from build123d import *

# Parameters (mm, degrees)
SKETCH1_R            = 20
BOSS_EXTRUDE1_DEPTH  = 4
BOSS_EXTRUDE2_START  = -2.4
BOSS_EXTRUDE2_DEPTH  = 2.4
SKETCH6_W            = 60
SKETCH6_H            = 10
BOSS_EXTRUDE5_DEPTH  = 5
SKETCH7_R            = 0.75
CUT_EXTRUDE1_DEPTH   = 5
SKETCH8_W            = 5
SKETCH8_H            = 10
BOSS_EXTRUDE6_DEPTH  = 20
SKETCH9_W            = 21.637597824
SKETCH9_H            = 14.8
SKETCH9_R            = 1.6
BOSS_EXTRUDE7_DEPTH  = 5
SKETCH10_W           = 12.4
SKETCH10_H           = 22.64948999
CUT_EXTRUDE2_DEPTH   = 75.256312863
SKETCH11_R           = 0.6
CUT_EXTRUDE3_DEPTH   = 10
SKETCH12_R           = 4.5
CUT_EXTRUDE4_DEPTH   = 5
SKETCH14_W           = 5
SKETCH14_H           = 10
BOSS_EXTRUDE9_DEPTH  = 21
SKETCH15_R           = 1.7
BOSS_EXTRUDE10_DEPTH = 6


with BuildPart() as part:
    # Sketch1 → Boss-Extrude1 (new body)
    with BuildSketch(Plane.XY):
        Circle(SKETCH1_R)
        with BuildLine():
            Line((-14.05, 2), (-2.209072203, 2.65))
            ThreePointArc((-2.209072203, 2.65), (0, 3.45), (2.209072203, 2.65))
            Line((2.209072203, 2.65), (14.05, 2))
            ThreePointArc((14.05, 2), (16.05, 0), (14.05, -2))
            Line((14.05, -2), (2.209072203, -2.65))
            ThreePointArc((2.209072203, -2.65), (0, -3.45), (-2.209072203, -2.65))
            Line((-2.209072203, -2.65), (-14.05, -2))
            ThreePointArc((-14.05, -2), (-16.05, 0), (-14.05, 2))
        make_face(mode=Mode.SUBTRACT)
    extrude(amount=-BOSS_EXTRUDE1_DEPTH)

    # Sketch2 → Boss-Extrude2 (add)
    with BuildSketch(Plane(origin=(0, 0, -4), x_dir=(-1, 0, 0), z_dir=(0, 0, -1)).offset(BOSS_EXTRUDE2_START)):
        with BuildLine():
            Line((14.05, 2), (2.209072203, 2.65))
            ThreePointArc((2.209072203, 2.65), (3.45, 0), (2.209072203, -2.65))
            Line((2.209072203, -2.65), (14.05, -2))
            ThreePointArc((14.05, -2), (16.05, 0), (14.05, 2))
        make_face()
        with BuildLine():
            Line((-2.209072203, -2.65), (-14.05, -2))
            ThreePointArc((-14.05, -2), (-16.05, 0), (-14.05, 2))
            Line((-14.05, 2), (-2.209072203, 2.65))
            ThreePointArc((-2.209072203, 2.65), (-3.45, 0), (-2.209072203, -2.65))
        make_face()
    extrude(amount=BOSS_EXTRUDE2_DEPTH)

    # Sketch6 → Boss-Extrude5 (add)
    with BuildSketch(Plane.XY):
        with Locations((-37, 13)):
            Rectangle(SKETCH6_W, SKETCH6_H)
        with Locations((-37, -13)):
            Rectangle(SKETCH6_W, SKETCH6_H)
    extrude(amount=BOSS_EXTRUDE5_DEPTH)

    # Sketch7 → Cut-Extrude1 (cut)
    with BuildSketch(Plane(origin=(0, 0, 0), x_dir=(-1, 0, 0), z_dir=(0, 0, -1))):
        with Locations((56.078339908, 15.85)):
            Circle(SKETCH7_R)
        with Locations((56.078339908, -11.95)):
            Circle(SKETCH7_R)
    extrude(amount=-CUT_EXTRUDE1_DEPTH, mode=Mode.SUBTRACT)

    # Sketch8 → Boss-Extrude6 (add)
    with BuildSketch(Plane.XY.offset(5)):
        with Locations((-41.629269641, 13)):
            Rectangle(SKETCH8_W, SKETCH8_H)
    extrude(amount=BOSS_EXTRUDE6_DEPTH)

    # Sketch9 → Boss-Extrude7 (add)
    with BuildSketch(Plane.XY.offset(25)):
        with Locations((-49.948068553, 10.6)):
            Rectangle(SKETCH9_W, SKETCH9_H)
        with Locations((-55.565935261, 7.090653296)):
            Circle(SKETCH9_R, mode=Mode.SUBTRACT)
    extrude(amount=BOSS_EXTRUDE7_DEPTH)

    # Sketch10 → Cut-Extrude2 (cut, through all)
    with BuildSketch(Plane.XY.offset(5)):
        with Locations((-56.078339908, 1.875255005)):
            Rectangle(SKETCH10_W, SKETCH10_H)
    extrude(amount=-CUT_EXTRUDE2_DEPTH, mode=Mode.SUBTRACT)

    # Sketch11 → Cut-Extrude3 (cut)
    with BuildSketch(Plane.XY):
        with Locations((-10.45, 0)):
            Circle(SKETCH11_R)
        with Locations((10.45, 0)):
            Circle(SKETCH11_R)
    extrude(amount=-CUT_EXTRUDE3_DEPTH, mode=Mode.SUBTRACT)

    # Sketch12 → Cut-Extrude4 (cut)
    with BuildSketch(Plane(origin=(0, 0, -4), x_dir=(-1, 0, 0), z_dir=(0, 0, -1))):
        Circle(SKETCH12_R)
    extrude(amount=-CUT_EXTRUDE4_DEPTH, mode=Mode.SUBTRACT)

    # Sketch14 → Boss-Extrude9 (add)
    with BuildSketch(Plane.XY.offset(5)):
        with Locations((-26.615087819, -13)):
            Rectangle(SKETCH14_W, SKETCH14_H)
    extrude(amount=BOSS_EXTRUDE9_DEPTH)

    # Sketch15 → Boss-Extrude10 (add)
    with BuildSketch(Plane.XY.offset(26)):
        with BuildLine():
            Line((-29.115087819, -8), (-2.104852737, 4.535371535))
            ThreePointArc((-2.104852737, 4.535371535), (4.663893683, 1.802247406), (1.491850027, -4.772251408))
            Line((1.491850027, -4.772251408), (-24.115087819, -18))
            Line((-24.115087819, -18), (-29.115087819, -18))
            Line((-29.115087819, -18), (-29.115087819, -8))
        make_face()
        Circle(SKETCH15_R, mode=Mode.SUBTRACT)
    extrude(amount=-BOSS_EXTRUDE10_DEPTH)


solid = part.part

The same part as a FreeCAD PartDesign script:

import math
import FreeCAD as App
import Part
import Sketcher

V = App.Vector


def add_polygon(sketch, points):
    """Adds a closed chain of lines whose ends are joined by coincident constraints."""
    first, n = sketch.GeometryCount, len(points)
    for a, b in zip(points, points[1:] + points[:1]):
        sketch.addGeometry(Part.LineSegment(App.Vector(*a, 0), App.Vector(*b, 0)), False)
    for i in range(n):
        sketch.addConstraint(Sketcher.Constraint("Coincident", first + i, 2, first + (i + 1) % n, 1))

doc = App.newDocument("Part")
params = doc.addObject("Spreadsheet::Sheet", "Params")
for row, (alias, value) in enumerate([
    ("sketch1_diameter", "40 mm"),
    ("sketch1_radius", "2 mm"),
    ("sketch1_radius2", "3.45 mm"),
    ("pad1_length", "4 mm"),
    ("sketch2_radius", "2 mm"),
    ("sketch2_radius2", "3.45 mm"),
    ("pad2_length", "2.4 mm"),
    ("sketch3_width", "60 mm"),
    ("sketch3_height", "10 mm"),
    ("pad3_length", "5 mm"),
    ("sketch4_diameter", "1.5 mm"),
    ("pocket1_length", "5 mm"),
    ("sketch5_width", "5 mm"),
    ("sketch5_height", "10 mm"),
    ("pad4_length", "20 mm"),
    ("sketch6_diameter", "3.2 mm"),
    ("sketch6_height", "14.8 mm"),
    ("pad5_length", "5 mm"),
    ("sketch7_width", "12.4 mm"),
    ("sketch8_diameter", "1.2 mm"),
    ("pocket3_length", "10 mm"),
    ("sketch9_diameter", "9 mm"),
    ("pocket4_length", "5 mm"),
    ("sketch10_width", "5 mm"),
    ("sketch10_height", "10 mm"),
    ("pad6_length", "21 mm"),
    ("sketch11_radius", "5 mm"),
    ("sketch11_diameter", "3.4 mm"),
    ("sketch11_width", "5 mm"),
    ("sketch11_height", "10 mm"),
    ("pad7_length", "6 mm"),
], start=1):
    params.set(f"A{row}", alias)
    params.set(f"B{row}", "=" + value)
    params.setAlias(f"B{row}", alias)

body = doc.addObject("PartDesign::Body", "Body")

# Sketch on XY plane
sketch1 = doc.addObject("Sketcher::SketchObject", "Sketch")
body.addObject(sketch1)
sketch1.AttachmentSupport = (doc.XY_Plane, [""])
sketch1.MapMode = "FlatFace"
sketch1.addGeometry(Part.Circle(V(0, 0, 0), V(0, 0, 1), 20), False)
sketch1.addGeometry(Part.ArcOfCircle(Part.Circle(V(-14.1, 0, 0), V(0, 0, 1), 2), math.radians(90), math.radians(270)), False)
sketch1.addGeometry(Part.LineSegment(V(-14.1, 2, 0), V(-2.2, 2.6, 0)), False)
sketch1.addGeometry(Part.ArcOfCircle(Part.Circle(V(0, 0, 0), V(0, 0, 1), 3.4), math.radians(50), math.radians(130)), False)
sketch1.addGeometry(Part.LineSegment(V(2.2, 2.6, 0), V(14.1, 2, 0)), False)
sketch1.addGeometry(Part.ArcOfCircle(Part.Circle(V(14.1, 0, 0), V(0, 0, 1), 2), math.radians(-90), math.radians(90)), False)
sketch1.addGeometry(Part.LineSegment(V(14.1, -2, 0), V(2.2, -2.6, 0)), False)
sketch1.addGeometry(Part.ArcOfCircle(Part.Circle(V(0, 0, 0), V(0, 0, 1), 3.4), math.radians(-130), math.radians(-50)), False)
sketch1.addGeometry(Part.LineSegment(V(-2.2, -2.6, 0), V(-14.1, -2, 0)), False)
sketch1.addConstraint(Sketcher.Constraint("Coincident", 1, 1, 2, 1))
sketch1.addConstraint(Sketcher.Constraint("Coincident", 2, 2, 3, 2))
sketch1.addConstraint(Sketcher.Constraint("Coincident", 3, 1, 4, 1))
sketch1.addConstraint(Sketcher.Constraint("Coincident", 4, 2, 5, 2))
sketch1.addConstraint(Sketcher.Constraint("Coincident", 5, 1, 6, 1))
sketch1.addConstraint(Sketcher.Constraint("Coincident", 6, 2, 7, 2))
sketch1.addConstraint(Sketcher.Constraint("Coincident", 7, 1, 8, 1))
sketch1.addConstraint(Sketcher.Constraint("Coincident", 8, 2, 1, 2))
sketch1.addConstraint(Sketcher.Constraint("Coincident", 0, 3, -1, 1))
sketch1.addConstraint(Sketcher.Constraint("Coincident", 3, 3, -1, 1))
sketch1.addConstraint(Sketcher.Constraint("Coincident", 7, 3, -1, 1))
sketch1.addConstraint(Sketcher.Constraint("Equal", 1, 5))
sketch1.addConstraint(Sketcher.Constraint("Equal", 3, 7))
sketch1.addConstraint(Sketcher.Constraint("Symmetric", 1, 3, 5, 3, -1, 1))
sketch1.addConstraint(Sketcher.Constraint("Symmetric", 1, 1, 4, 2, -2))
sketch1.addConstraint(Sketcher.Constraint("Parallel", 2, 6))
sketch1.addConstraint(Sketcher.Constraint("Parallel", 4, 8))
sketch1.addConstraint(Sketcher.Constraint("Horizontal", 2, 2, 3, 1))
sketch1.addConstraint(Sketcher.Constraint("Horizontal", 6, 2, 7, 1))
sketch1.addConstraint(Sketcher.Constraint("Vertical", 5, 3, 4, 2))
sketch1.addConstraint(Sketcher.Constraint("Vertical", 4, 2, 5, 1))
sketch1.addConstraint(Sketcher.Constraint("Diameter", 0, 40.0))
sketch1.addConstraint(Sketcher.Constraint("Radius", 1, 2.0))
sketch1.addConstraint(Sketcher.Constraint("Radius", 3, 3.45))
sketch1.addConstraint(Sketcher.Constraint("DistanceX", 1, 3, 5, 3, 28.1))
sketch1.addConstraint(Sketcher.Constraint("DistanceY", 6, 2, 3, 1, 5.3))
sketch1.setExpression("Constraints[21]", "Params.sketch1_diameter")
sketch1.setExpression("Constraints[22]", "Params.sketch1_radius")
sketch1.setExpression("Constraints[23]", "Params.sketch1_radius2")
pad1 = doc.addObject("PartDesign::Pad", "Pad")
body.addObject(pad1)
pad1.Profile = sketch1
pad1.setExpression("Length", "Params.pad1_length")
pad1.Reversed = True

# Sketch on XY plane
sketch2 = doc.addObject("Sketcher::SketchObject", "Sketch001")
body.addObject(sketch2)
sketch2.AttachmentSupport = (doc.XY_Plane, [""])
sketch2.MapMode = "FlatFace"
sketch2.AttachmentOffset = App.Placement(V(0, 0, -1.6), App.Rotation())
sketch2.addGeometry(Part.LineSegment(V(-14.1, 2, 0), V(-2.2, 2.6, 0)), False)
sketch2.addGeometry(Part.ArcOfCircle(Part.Circle(V(0, 0, 0), V(0, 0, 1), 3.4), math.radians(130), math.radians(230)), False)
sketch2.addGeometry(Part.LineSegment(V(-2.2, -2.6, 0), V(-14.1, -2, 0)), False)
sketch2.addGeometry(Part.ArcOfCircle(Part.Circle(V(-14.1, 0, 0), V(0, 0, 1), 2), math.radians(90), math.radians(270)), False)
sketch2.addGeometry(Part.LineSegment(V(14.1, -2, 0), V(2.2, -2.6, 0)), False)
sketch2.addGeometry(Part.ArcOfCircle(Part.Circle(V(0, 0, 0), V(0, 0, 1), 3.4), math.radians(-50), math.radians(50)), False)
sketch2.addGeometry(Part.LineSegment(V(2.2, 2.6, 0), V(14.1, 2, 0)), False)
sketch2.addGeometry(Part.ArcOfCircle(Part.Circle(V(14.1, 0, 0), V(0, 0, 1), 2), math.radians(-90), math.radians(90)), False)
sketch2.addConstraint(Sketcher.Constraint("Coincident", 0, 2, 1, 1))
sketch2.addConstraint(Sketcher.Constraint("Coincident", 1, 2, 2, 1))
sketch2.addConstraint(Sketcher.Constraint("Coincident", 2, 2, 3, 2))
sketch2.addConstraint(Sketcher.Constraint("Coincident", 3, 1, 0, 1))
sketch2.addConstraint(Sketcher.Constraint("Coincident", 4, 2, 5, 1))
sketch2.addConstraint(Sketcher.Constraint("Coincident", 5, 2, 6, 1))
sketch2.addConstraint(Sketcher.Constraint("Coincident", 6, 2, 7, 2))
sketch2.addConstraint(Sketcher.Constraint("Coincident", 7, 1, 4, 1))
sketch2.addConstraint(Sketcher.Constraint("Coincident", 1, 3, -1, 1))
sketch2.addConstraint(Sketcher.Constraint("Coincident", 5, 3, -1, 1))
sketch2.addConstraint(Sketcher.Constraint("Equal", 1, 5))
sketch2.addConstraint(Sketcher.Constraint("Equal", 3, 7))
sketch2.addConstraint(Sketcher.Constraint("Symmetric", 3, 3, 7, 3, -1, 1))
sketch2.addConstraint(Sketcher.Constraint("Symmetric", 3, 1, 6, 2, -2))
sketch2.addConstraint(Sketcher.Constraint("Parallel", 0, 4))
sketch2.addConstraint(Sketcher.Constraint("Parallel", 2, 6))
sketch2.addConstraint(Sketcher.Constraint("Horizontal", 1, 2, 4, 2))
sketch2.addConstraint(Sketcher.Constraint("Horizontal", 0, 2, 5, 2))
sketch2.addConstraint(Sketcher.Constraint("Vertical", 0, 2, 1, 2))
sketch2.addConstraint(Sketcher.Constraint("Vertical", 3, 3, 2, 2))
sketch2.addConstraint(Sketcher.Constraint("Radius", 3, 2.0))
sketch2.addConstraint(Sketcher.Constraint("Radius", 1, 3.45))
sketch2.addConstraint(Sketcher.Constraint("DistanceX", 3, 3, 7, 3, 28.1))
sketch2.addConstraint(Sketcher.Constraint("DistanceY", 1, 2, 0, 2, 5.3))
sketch2.setExpression("Constraints[20]", "Params.sketch2_radius")
sketch2.setExpression("Constraints[21]", "Params.sketch2_radius2")
pad2 = doc.addObject("PartDesign::Pad", "Pad001")
body.addObject(pad2)
pad2.Profile = sketch2
pad2.setExpression("Length", "Params.pad2_length")
pad2.Reversed = True

# Sketch on XY plane
sketch3 = doc.addObject("Sketcher::SketchObject", "Sketch002")
body.addObject(sketch3)
sketch3.AttachmentSupport = (doc.XY_Plane, [""])
sketch3.MapMode = "FlatFace"
add_polygon(sketch3, [(-67, 18), (-67, 8), (-7, 8), (-7, 18)])  # lines 0-3
add_polygon(sketch3, [(-67, -8), (-67, -18), (-7, -18), (-7, -8)])  # lines 4-7
sketch3.addConstraint(Sketcher.Constraint("Vertical", 0))
sketch3.addConstraint(Sketcher.Constraint("Horizontal", 1))
sketch3.addConstraint(Sketcher.Constraint("Vertical", 2))
sketch3.addConstraint(Sketcher.Constraint("Horizontal", 3))
sketch3.addConstraint(Sketcher.Constraint("Vertical", 4))
sketch3.addConstraint(Sketcher.Constraint("Horizontal", 5))
sketch3.addConstraint(Sketcher.Constraint("Vertical", 6))
sketch3.addConstraint(Sketcher.Constraint("Horizontal", 7))
sketch3.addConstraint(Sketcher.Constraint("Symmetric", 3, 2, 4, 2, -1))
sketch3.addConstraint(Sketcher.Constraint("Symmetric", 1, 2, 6, 2, -1))
sketch3.addConstraint(Sketcher.Constraint("DistanceX", 1, 1, 1, 2, 60.0))
sketch3.addConstraint(Sketcher.Constraint("DistanceY", 0, 2, 0, 1, 10.0))
sketch3.addConstraint(Sketcher.Constraint("DistanceX", 0, 2, -1, 1, 67.0))
sketch3.addConstraint(Sketcher.Constraint("DistanceY", -1, 1, 0, 2, 8.0))
sketch3.setExpression("Constraints[18]", "Params.sketch3_width")
sketch3.setExpression("Constraints[19]", "Params.sketch3_height")
pad3 = doc.addObject("PartDesign::Pad", "Pad002")
body.addObject(pad3)
pad3.Profile = sketch3
pad3.setExpression("Length", "Params.pad3_length")

# Sketch on XY plane
sketch4 = doc.addObject("Sketcher::SketchObject", "Sketch003")
body.addObject(sketch4)
sketch4.AttachmentSupport = (doc.XY_Plane, [""])
sketch4.MapMode = "FlatFace"
sketch4.addGeometry(Part.Circle(V(-56.1, 15.8, 0), V(0, 0, 1), 0.8), False)
sketch4.addGeometry(Part.Circle(V(-56.1, -11.9, 0), V(0, 0, 1), 0.8), False)
sketch4.addConstraint(Sketcher.Constraint("Equal", 0, 1))
sketch4.addConstraint(Sketcher.Constraint("Vertical", 0, 3, 1, 3))
sketch4.addConstraint(Sketcher.Constraint("Diameter", 0, 1.5))
sketch4.addConstraint(Sketcher.Constraint("DistanceY", 1, 3, 0, 3, 27.8))
sketch4.addConstraint(Sketcher.Constraint("DistanceY", -1, 1, 0, 3, 15.85))
sketch4.addConstraint(Sketcher.Constraint("DistanceX", 0, 3, -1, 1, 56.07834))
sketch4.setExpression("Constraints[2]", "Params.sketch4_diameter")
pocket1 = doc.addObject("PartDesign::Pocket", "Pocket")
body.addObject(pocket1)
pocket1.Profile = sketch4
pocket1.setExpression("Length", "Params.pocket1_length")
pocket1.Reversed = True

# Sketch on XY plane
sketch5 = doc.addObject("Sketcher::SketchObject", "Sketch004")
body.addObject(sketch5)
sketch5.AttachmentSupport = (doc.XY_Plane, [""])
sketch5.MapMode = "FlatFace"
sketch5.AttachmentOffset = App.Placement(V(0, 0, 5), App.Rotation())
add_polygon(sketch5, [(-44, 18), (-44, 8), (-39, 8), (-39, 18)])  # lines 0-3
sketch5.addConstraint(Sketcher.Constraint("Vertical", 0))
sketch5.addConstraint(Sketcher.Constraint("Horizontal", 1))
sketch5.addConstraint(Sketcher.Constraint("Vertical", 2))
sketch5.addConstraint(Sketcher.Constraint("Horizontal", 3))
sketch5.addConstraint(Sketcher.Constraint("DistanceX", 1, 1, 1, 2, 5.0))
sketch5.addConstraint(Sketcher.Constraint("DistanceY", 0, 2, 0, 1, 10.0))
sketch5.addConstraint(Sketcher.Constraint("DistanceY", -1, 1, 0, 2, 8.0))
sketch5.addConstraint(Sketcher.Constraint("DistanceX", 0, 2, -1, 1, 44.12927))
sketch5.setExpression("Constraints[8]", "Params.sketch5_width")
sketch5.setExpression("Constraints[9]", "Params.sketch5_height")
pad4 = doc.addObject("PartDesign::Pad", "Pad003")
body.addObject(pad4)
pad4.Profile = sketch5
pad4.setExpression("Length", "Params.pad4_length")

# Sketch on XY plane
sketch6 = doc.addObject("Sketcher::SketchObject", "Sketch005")
body.addObject(sketch6)
sketch6.AttachmentSupport = (doc.XY_Plane, [""])
sketch6.MapMode = "FlatFace"
sketch6.AttachmentOffset = App.Placement(V(0, 0, 25), App.Rotation())
add_polygon(sketch6, [(-60.8, 18), (-60.8, 3.2), (-39.1, 3.2), (-39.1, 18)])  # lines 0-3
sketch6.addGeometry(Part.Circle(V(-55.6, 7.1, 0), V(0, 0, 1), 1.6), False)  # 4
sketch6.addConstraint(Sketcher.Constraint("Vertical", 0))
sketch6.addConstraint(Sketcher.Constraint("Horizontal", 1))
sketch6.addConstraint(Sketcher.Constraint("Vertical", 2))
sketch6.addConstraint(Sketcher.Constraint("Horizontal", 3))
sketch6.addConstraint(Sketcher.Constraint("Diameter", 4, 3.2))
sketch6.addConstraint(Sketcher.Constraint("DistanceY", 0, 2, 0, 1, 14.8))
sketch6.addConstraint(Sketcher.Constraint("DistanceY", -1, 1, 2, 2, 18.0))
sketch6.addConstraint(Sketcher.Constraint("DistanceX", 1, 1, 1, 2, 21.637598))
sketch6.addConstraint(Sketcher.Constraint("DistanceX", 1, 2, -1, 1, 39.12927))
sketch6.addConstraint(Sketcher.Constraint("DistanceX", 4, 3, -1, 1, 55.565935))
sketch6.addConstraint(Sketcher.Constraint("DistanceY", -1, 1, 4, 3, 7.090653))
sketch6.setExpression("Constraints[8]", "Params.sketch6_diameter")
sketch6.setExpression("Constraints[9]", "Params.sketch6_height")
pad5 = doc.addObject("PartDesign::Pad", "Pad004")
body.addObject(pad5)
pad5.Profile = sketch6
pad5.setExpression("Length", "Params.pad5_length")

# Sketch on XY plane
sketch7 = doc.addObject("Sketcher::SketchObject", "Sketch006")
body.addObject(sketch7)
sketch7.AttachmentSupport = (doc.XY_Plane, [""])
sketch7.MapMode = "FlatFace"
sketch7.AttachmentOffset = App.Placement(V(0, 0, 5), App.Rotation())
add_polygon(sketch7, [(-62, 13), (-62, -9), (-50, -9), (-50, 13)])  # lines 0-3
sketch7.addConstraint(Sketcher.Constraint("Vertical", 0))
sketch7.addConstraint(Sketcher.Constraint("Horizontal", 1))
sketch7.addConstraint(Sketcher.Constraint("Vertical", 2))
sketch7.addConstraint(Sketcher.Constraint("Horizontal", 3))
sketch7.addConstraint(Sketcher.Constraint("DistanceX", 1, 1, 1, 2, 12.4))
sketch7.addConstraint(Sketcher.Constraint("DistanceY", -1, 1, 2, 2, 13.2))
sketch7.addConstraint(Sketcher.Constraint("DistanceY", 0, 2, 0, 1, 22.64949))
sketch7.addConstraint(Sketcher.Constraint("DistanceX", 0, 2, -1, 1, 62.27834))
sketch7.setExpression("Constraints[8]", "Params.sketch7_width")
pocket2 = doc.addObject("PartDesign::Pocket", "Pocket001")
body.addObject(pocket2)
pocket2.Profile = sketch7
pocket2.Type = "ThroughAll"

# Sketch on XY plane
sketch8 = doc.addObject("Sketcher::SketchObject", "Sketch007")
body.addObject(sketch8)
sketch8.AttachmentSupport = (doc.XY_Plane, [""])
sketch8.MapMode = "FlatFace"
sketch8.addGeometry(Part.Circle(V(-10.4, 0, 0), V(0, 0, 1), 0.6), False)
sketch8.addGeometry(Part.Circle(V(10.4, 0, 0), V(0, 0, 1), 0.6), False)
sketch8.addConstraint(Sketcher.Constraint("Equal", 0, 1))
sketch8.addConstraint(Sketcher.Constraint("Symmetric", 0, 3, 1, 3, -1, 1))
sketch8.addConstraint(Sketcher.Constraint("PointOnObject", 0, 3, -1))
sketch8.addConstraint(Sketcher.Constraint("Diameter", 0, 1.2))
sketch8.addConstraint(Sketcher.Constraint("DistanceX", 0, 3, 1, 3, 20.9))
sketch8.setExpression("Constraints[3]", "Params.sketch8_diameter")
pocket3 = doc.addObject("PartDesign::Pocket", "Pocket002")
body.addObject(pocket3)
pocket3.Profile = sketch8
pocket3.setExpression("Length", "Params.pocket3_length")

# Sketch on XY plane
sketch9 = doc.addObject("Sketcher::SketchObject", "Sketch008")
body.addObject(sketch9)
sketch9.AttachmentSupport = (doc.XY_Plane, [""])
sketch9.MapMode = "FlatFace"
sketch9.AttachmentOffset = App.Placement(V(0, 0, -4), App.Rotation())
sketch9.addGeometry(Part.Circle(V(0, 0, 0), V(0, 0, 1), 4.5), False)
sketch9.addConstraint(Sketcher.Constraint("Coincident", 0, 3, -1, 1))
sketch9.addConstraint(Sketcher.Constraint("Diameter", 0, 9.0))
sketch9.setExpression("Constraints[1]", "Params.sketch9_diameter")
pocket4 = doc.addObject("PartDesign::Pocket", "Pocket003")
body.addObject(pocket4)
pocket4.Profile = sketch9
pocket4.setExpression("Length", "Params.pocket4_length")
pocket4.Reversed = True

# Sketch on XY plane
sketch10 = doc.addObject("Sketcher::SketchObject", "Sketch009")
body.addObject(sketch10)
sketch10.AttachmentSupport = (doc.XY_Plane, [""])
sketch10.MapMode = "FlatFace"
sketch10.AttachmentOffset = App.Placement(V(0, 0, 5), App.Rotation())
add_polygon(sketch10, [(-29, -8), (-29, -18), (-24, -18), (-24, -8)])  # lines 0-3
sketch10.addConstraint(Sketcher.Constraint("Vertical", 0))
sketch10.addConstraint(Sketcher.Constraint("Horizontal", 1))
sketch10.addConstraint(Sketcher.Constraint("Vertical", 2))
sketch10.addConstraint(Sketcher.Constraint("Horizontal", 3))
sketch10.addConstraint(Sketcher.Constraint("DistanceX", 1, 1, 1, 2, 5.0))
sketch10.addConstraint(Sketcher.Constraint("DistanceY", 0, 2, 0, 1, 10.0))
sketch10.addConstraint(Sketcher.Constraint("DistanceY", 0, 2, -1, 1, 18.0))
sketch10.addConstraint(Sketcher.Constraint("DistanceX", 0, 2, -1, 1, 29.115088))
sketch10.setExpression("Constraints[8]", "Params.sketch10_width")
sketch10.setExpression("Constraints[9]", "Params.sketch10_height")
pad6 = doc.addObject("PartDesign::Pad", "Pad005")
body.addObject(pad6)
pad6.Profile = sketch10
pad6.setExpression("Length", "Params.pad6_length")

# Sketch on XY plane
sketch11 = doc.addObject("Sketcher::SketchObject", "Sketch010")
body.addObject(sketch11)
sketch11.AttachmentSupport = (doc.XY_Plane, [""])
sketch11.MapMode = "FlatFace"
sketch11.AttachmentOffset = App.Placement(V(0, 0, 26), App.Rotation())
sketch11.addGeometry(Part.LineSegment(V(-2.1, 4.5, 0), V(-29.1, -8, 0)), False)
sketch11.addGeometry(Part.LineSegment(V(-29.1, -8, 0), V(-29.1, -18, 0)), False)
sketch11.addGeometry(Part.LineSegment(V(-29.1, -18, 0), V(-24.1, -18, 0)), False)
sketch11.addGeometry(Part.LineSegment(V(-24.1, -18, 0), V(1.5, -4.8, 0)), False)
sketch11.addGeometry(Part.ArcOfCircle(Part.Circle(V(0, 0, 0), V(0, 0, 1), 5), math.radians(-73), math.radians(115)), False)
sketch11.addGeometry(Part.Circle(V(0, 0, 0), V(0, 0, 1), 1.7), False)
sketch11.addConstraint(Sketcher.Constraint("Coincident", 0, 2, 1, 1))
sketch11.addConstraint(Sketcher.Constraint("Coincident", 1, 2, 2, 1))
sketch11.addConstraint(Sketcher.Constraint("Coincident", 2, 2, 3, 1))
sketch11.addConstraint(Sketcher.Constraint("Coincident", 3, 2, 4, 1))
sketch11.addConstraint(Sketcher.Constraint("Tangent", 4, 2, 0, 1))
sketch11.addConstraint(Sketcher.Constraint("Vertical", 1))
sketch11.addConstraint(Sketcher.Constraint("Horizontal", 2))
sketch11.addConstraint(Sketcher.Constraint("Coincident", 4, 3, -1, 1))
sketch11.addConstraint(Sketcher.Constraint("Coincident", 5, 3, -1, 1))
sketch11.addConstraint(Sketcher.Constraint("Radius", 4, 5.0))
sketch11.addConstraint(Sketcher.Constraint("Diameter", 5, 3.4))
sketch11.addConstraint(Sketcher.Constraint("DistanceX", 2, 1, 2, 2, 5.0))
sketch11.addConstraint(Sketcher.Constraint("DistanceY", 1, 2, 1, 1, 10.0))
sketch11.addConstraint(Sketcher.Constraint("DistanceY", 0, 2, -1, 1, 8.0))
sketch11.addConstraint(Sketcher.Constraint("Distance", 3, 28.821669))
sketch11.addConstraint(Sketcher.Constraint("DistanceX", -1, 1, 3, 2, 1.49185))
sketch11.setExpression("Constraints[9]", "Params.sketch11_radius")
sketch11.setExpression("Constraints[10]", "Params.sketch11_diameter")
sketch11.setExpression("Constraints[11]", "Params.sketch11_width")
sketch11.setExpression("Constraints[12]", "Params.sketch11_height")
pad7 = doc.addObject("PartDesign::Pad", "Pad006")
body.addObject(pad7)
pad7.Profile = sketch11
pad7.setExpression("Length", "Params.pad7_length")
pad7.Reversed = True

doc.recompute()
